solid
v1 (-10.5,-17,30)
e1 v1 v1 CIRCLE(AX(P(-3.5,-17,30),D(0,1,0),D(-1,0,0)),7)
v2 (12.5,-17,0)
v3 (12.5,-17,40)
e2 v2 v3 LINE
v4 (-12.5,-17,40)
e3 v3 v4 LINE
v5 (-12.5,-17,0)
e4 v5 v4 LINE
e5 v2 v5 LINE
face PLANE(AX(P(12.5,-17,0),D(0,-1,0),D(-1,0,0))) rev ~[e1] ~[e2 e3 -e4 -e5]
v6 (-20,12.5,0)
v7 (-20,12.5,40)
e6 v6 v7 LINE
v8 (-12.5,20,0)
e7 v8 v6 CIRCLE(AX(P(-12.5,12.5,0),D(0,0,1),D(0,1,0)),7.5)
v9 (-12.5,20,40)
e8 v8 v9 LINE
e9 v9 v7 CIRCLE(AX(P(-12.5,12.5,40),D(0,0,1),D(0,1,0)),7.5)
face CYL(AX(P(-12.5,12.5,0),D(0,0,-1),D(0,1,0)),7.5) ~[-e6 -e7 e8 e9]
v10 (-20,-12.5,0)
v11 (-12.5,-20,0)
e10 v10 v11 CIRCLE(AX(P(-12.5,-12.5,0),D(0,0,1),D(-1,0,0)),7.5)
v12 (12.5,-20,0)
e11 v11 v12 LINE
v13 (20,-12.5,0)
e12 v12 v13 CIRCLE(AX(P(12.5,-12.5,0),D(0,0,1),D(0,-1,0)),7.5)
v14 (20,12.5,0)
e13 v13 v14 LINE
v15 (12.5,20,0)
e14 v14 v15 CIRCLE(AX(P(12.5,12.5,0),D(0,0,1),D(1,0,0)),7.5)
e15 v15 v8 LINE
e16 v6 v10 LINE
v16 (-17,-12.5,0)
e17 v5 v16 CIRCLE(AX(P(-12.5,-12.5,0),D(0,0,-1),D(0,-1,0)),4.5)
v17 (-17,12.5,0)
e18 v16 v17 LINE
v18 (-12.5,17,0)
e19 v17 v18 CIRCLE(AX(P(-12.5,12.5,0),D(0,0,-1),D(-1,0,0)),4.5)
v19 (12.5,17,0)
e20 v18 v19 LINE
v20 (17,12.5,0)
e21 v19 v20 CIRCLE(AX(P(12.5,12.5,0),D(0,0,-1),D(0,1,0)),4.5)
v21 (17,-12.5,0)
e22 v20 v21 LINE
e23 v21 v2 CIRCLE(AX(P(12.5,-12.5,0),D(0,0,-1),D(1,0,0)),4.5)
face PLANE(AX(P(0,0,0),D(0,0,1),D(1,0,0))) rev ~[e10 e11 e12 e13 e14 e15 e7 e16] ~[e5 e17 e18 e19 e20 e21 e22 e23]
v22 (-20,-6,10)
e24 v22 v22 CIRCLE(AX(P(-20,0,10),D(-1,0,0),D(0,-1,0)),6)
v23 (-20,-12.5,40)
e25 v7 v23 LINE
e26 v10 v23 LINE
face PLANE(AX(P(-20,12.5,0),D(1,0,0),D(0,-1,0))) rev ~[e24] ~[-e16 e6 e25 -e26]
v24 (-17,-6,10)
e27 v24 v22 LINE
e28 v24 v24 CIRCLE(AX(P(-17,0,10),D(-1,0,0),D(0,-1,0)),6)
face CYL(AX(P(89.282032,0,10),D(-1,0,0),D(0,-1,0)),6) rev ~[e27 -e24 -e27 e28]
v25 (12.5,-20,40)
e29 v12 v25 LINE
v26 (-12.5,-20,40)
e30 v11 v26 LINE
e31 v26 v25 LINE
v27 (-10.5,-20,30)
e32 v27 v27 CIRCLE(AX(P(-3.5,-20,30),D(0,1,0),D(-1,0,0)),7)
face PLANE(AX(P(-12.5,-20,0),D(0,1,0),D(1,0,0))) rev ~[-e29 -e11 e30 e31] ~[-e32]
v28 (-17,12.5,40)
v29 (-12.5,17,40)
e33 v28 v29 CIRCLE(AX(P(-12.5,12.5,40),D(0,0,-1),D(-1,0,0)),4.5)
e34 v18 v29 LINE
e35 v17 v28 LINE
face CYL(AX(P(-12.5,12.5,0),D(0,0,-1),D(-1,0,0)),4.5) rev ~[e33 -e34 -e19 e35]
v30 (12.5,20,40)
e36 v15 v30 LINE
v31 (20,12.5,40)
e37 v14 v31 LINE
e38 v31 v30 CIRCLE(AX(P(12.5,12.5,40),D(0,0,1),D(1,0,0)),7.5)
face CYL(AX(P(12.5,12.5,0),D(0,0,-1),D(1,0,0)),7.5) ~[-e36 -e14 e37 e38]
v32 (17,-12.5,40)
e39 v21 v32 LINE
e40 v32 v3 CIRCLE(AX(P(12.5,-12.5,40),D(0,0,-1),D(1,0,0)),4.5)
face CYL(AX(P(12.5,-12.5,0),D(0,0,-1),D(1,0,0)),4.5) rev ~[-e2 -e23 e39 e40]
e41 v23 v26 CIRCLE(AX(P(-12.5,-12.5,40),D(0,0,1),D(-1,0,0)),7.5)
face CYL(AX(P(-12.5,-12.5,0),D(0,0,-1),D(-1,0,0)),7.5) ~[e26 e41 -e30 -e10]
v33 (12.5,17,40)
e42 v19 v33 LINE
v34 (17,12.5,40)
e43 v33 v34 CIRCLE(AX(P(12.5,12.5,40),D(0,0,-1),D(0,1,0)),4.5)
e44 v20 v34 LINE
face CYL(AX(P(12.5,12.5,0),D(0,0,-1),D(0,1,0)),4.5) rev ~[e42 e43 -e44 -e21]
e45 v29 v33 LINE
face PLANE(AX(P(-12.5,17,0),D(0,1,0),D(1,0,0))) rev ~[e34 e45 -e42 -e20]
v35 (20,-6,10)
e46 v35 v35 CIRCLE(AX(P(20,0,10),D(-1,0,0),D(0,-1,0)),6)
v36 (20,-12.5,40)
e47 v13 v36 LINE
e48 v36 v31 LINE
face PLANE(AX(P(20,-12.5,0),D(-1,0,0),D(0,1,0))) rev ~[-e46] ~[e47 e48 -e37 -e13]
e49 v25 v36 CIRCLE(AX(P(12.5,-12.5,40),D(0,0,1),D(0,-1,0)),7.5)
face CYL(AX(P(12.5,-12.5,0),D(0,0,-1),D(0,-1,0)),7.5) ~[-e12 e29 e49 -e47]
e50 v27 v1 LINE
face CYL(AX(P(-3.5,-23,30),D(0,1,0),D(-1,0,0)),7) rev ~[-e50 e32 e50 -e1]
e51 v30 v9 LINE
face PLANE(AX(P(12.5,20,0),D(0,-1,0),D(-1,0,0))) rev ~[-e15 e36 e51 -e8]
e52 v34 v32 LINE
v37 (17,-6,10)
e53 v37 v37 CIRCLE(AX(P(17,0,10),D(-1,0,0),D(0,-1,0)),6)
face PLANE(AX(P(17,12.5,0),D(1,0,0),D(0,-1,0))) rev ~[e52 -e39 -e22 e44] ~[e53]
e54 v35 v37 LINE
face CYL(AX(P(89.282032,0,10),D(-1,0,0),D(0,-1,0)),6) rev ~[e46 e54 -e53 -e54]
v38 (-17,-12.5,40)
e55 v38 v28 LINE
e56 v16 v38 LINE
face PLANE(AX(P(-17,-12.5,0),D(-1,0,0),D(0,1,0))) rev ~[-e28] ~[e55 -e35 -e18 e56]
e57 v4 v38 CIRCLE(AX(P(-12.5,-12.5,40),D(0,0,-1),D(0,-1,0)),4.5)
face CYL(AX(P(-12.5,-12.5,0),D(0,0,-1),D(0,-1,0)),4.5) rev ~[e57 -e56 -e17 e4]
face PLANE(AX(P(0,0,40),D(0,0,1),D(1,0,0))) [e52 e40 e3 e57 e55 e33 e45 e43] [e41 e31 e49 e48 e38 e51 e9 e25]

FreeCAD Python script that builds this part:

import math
import FreeCAD as App
import Part
import Sketcher
Q = App.Units.Quantity

doc = App.newDocument("Part")
body = doc.addObject("PartDesign::Body", "Body")

# Sketch on XY plane
sketch1 = body.newObject("Sketcher::SketchObject", "Sketch")
sketch1.AttachmentSupport = (doc.getObject("XY_Plane"), [""])
sketch1.MapMode = "FlatFace"
sketch1.addGeometry(Part.LineSegment(App.Vector(-12.5, -20, 0), App.Vector(12.5, -20, 0)), False)
sketch1.addGeometry(Part.ArcOfCircle(Part.Circle(App.Vector(12.5, -12.5, 0), App.Vector(0, 0, 1), 7.5), math.radians(-90), math.radians(0)), False)
sketch1.addGeometry(Part.LineSegment(App.Vector(20, -12.5, 0), App.Vector(20, 12.5, 0)), False)
sketch1.addGeometry(Part.ArcOfCircle(Part.Circle(App.Vector(12.5, 12.5, 0), App.Vector(0, 0, 1), 7.5), math.radians(0), math.radians(90)), False)
sketch1.addGeometry(Part.LineSegment(App.Vector(12.5, 20, 0), App.Vector(-12.5, 20, 0)), False)
sketch1.addGeometry(Part.ArcOfCircle(Part.Circle(App.Vector(-12.5, 12.5, 0), App.Vector(0, 0, 1), 7.5), math.radians(90), math.radians(180)), False)
sketch1.addGeometry(Part.LineSegment(App.Vector(-20, 12.5, 0), App.Vector(-20, -12.5, 0)), False)
sketch1.addGeometry(Part.ArcOfCircle(Part.Circle(App.Vector(-12.5, -12.5, 0), App.Vector(0, 0, 1), 7.5), math.radians(180), math.radians(270)), False)
sketch1.addGeometry(Part.LineSegment(App.Vector(12.5, -17, 0), App.Vector(-12.5, -17, 0)), False)
sketch1.addGeometry(Part.ArcOfCircle(Part.Circle(App.Vector(-12.5, -12.5, 0), App.Vector(0, 0, 1), 4.5), math.radians(180), math.radians(270)), False)
sketch1.addGeometry(Part.LineSegment(App.Vector(-17, -12.5, 0), App.Vector(-17, 12.5, 0)), False)
sketch1.addGeometry(Part.ArcOfCircle(Part.Circle(App.Vector(-12.5, 12.5, 0), App.Vector(0, 0, 1), 4.5), math.radians(90), math.radians(180)), False)
sketch1.addGeometry(Part.LineSegment(App.Vector(-12.5, 17, 0), App.Vector(12.5, 17, 0)), False)
sketch1.addGeometry(Part.ArcOfCircle(Part.Circle(App.Vector(12.5, 12.5, 0), App.Vector(0, 0, 1), 4.5), math.radians(0), math.radians(90)), False)
sketch1.addGeometry(Part.LineSegment(App.Vector(17, 12.5, 0), App.Vector(17, -12.5, 0)), False)
sketch1.addGeometry(Part.ArcOfCircle(Part.Circle(App.Vector(12.5, -12.5, 0), App.Vector(0, 0, 1), 4.5), math.radians(-90), math.radians(0)), False)
sketch1.addConstraint(Sketcher.Constraint("Tangent", 0, 2, 1, 1))
sketch1.addConstraint(Sketcher.Constraint("Tangent", 1, 2, 2, 1))
sketch1.addConstraint(Sketcher.Constraint("Tangent", 2, 2, 3, 1))
sketch1.addConstraint(Sketcher.Constraint("Tangent", 3, 2, 4, 1))
sketch1.addConstraint(Sketcher.Constraint("Tangent", 4, 2, 5, 1))
sketch1.addConstraint(Sketcher.Constraint("Tangent", 5, 2, 6, 1))
sketch1.addConstraint(Sketcher.Constraint("Tangent", 6, 2, 7, 1))
sketch1.addConstraint(Sketcher.Constraint("Tangent", 7, 2, 0, 1))
sketch1.addConstraint(Sketcher.Constraint("Tangent", 8, 2, 9, 2))
sketch1.addConstraint(Sketcher.Constraint("Tangent", 9, 1, 10, 1))
sketch1.addConstraint(Sketcher.Constraint("Tangent", 10, 2, 11, 2))
sketch1.addConstraint(Sketcher.Constraint("Tangent", 11, 1, 12, 1))
sketch1.addConstraint(Sketcher.Constraint("Tangent", 12, 2, 13, 2))
sketch1.addConstraint(Sketcher.Constraint("Tangent", 13, 1, 14, 1))
sketch1.addConstraint(Sketcher.Constraint("Tangent", 14, 2, 15, 2))
sketch1.addConstraint(Sketcher.Constraint("Tangent", 15, 1, 8, 1))
sketch1.addConstraint(Sketcher.Constraint("Horizontal", 0))
sketch1.addConstraint(Sketcher.Constraint("Vertical", 2))
sketch1.addConstraint(Sketcher.Constraint("Horizontal", 4))
sketch1.addConstraint(Sketcher.Constraint("Vertical", 6))
sketch1.addConstraint(Sketcher.Constraint("Horizontal", 8))
sketch1.addConstraint(Sketcher.Constraint("Vertical", 10))
sketch1.addConstraint(Sketcher.Constraint("Horizontal", 12))
sketch1.addConstraint(Sketcher.Constraint("Vertical", 14))
sketch1.addConstraint(Sketcher.Constraint("Coincident", 9, 3, 7, 3))
sketch1.addConstraint(Sketcher.Constraint("Coincident", 11, 3, 5, 3))
sketch1.addConstraint(Sketcher.Constraint("Coincident", 13, 3, 3, 3))
sketch1.addConstraint(Sketcher.Constraint("Equal", 1, 3))
sketch1.addConstraint(Sketcher.Constraint("Equal", 3, 5))
sketch1.addConstraint(Sketcher.Constraint("Equal", 5, 7))
sketch1.addConstraint(Sketcher.Constraint("Equal", 13, 15))
sketch1.addConstraint(Sketcher.Constraint("Symmetric", 1, 3, 5, 3, -1, 1))
sketch1.addConstraint(Sketcher.Constraint("Equal", 12, 2))
sketch1.addConstraint(Sketcher.Constraint("Radius", 1, Q("7.5 mm")))
sketch1.addConstraint(Sketcher.Constraint("Radius", 9, Q("4.5 mm")))
sketch1.addConstraint(Sketcher.Constraint("DistanceX", 0, 1, 0, 2, Q("25 mm")))
pad1 = body.newObject("PartDesign::Pad", "Pad")
pad1.Profile = sketch1
pad1.Length = 40

# Sketch on XZ plane
sketch2 = body.newObject("Sketcher::SketchObject", "Sketch001")
sketch2.AttachmentSupport = (doc.getObject("XZ_Plane"), [""])
sketch2.MapMode = "FlatFace"
sketch2.AttachmentOffset = App.Placement(App.Vector(0, 0, 20), App.Rotation())
sketch2.addGeometry(Part.Circle(App.Vector(-3.5, 30, 0), App.Vector(0, 0, 1), 7), False)
sketch2.addConstraint(Sketcher.Constraint("Diameter", 0, Q("14 mm")))
sketch2.addConstraint(Sketcher.Constraint("DistanceY", -1, 1, 0, 3, Q("30 mm")))
sketch2.addConstraint(Sketcher.Constraint("DistanceX", 0, 3, -1, 1, Q("3.5 mm")))
doc.recompute()
hole = body.newObject("PartDesign::Hole", "Hole")
hole.Profile = sketch2
hole.ThreadType = "None"
hole.Diameter = 14
hole.DepthType = "Dimension"
hole.Depth = 3
hole.DrillPoint = "Angled"
hole.DrillPointAngle = 118

# Sketch on YZ plane
sketch3 = body.newObject("Sketcher::SketchObject", "Sketch002")
sketch3.AttachmentSupport = (doc.getObject("YZ_Plane"), [""])
sketch3.MapMode = "FlatFace"
sketch3.AttachmentOffset = App.Placement(App.Vector(0, 0, 20), App.Rotation())
sketch3.addGeometry(Part.Circle(App.Vector(0, 10, 0), App.Vector(0, 0, 1), 6), False)
sketch3.addConstraint(Sketcher.Constraint("PointOnObject", 0, 3, -2))
sketch3.addConstraint(Sketcher.Constraint("Diameter", 0, Q("12 mm")))
sketch3.addConstraint(Sketcher.Constraint("DistanceY", -1, 1, 0, 3, Q("10 mm")))
doc.recompute()
hole2 = body.newObject("PartDesign::Hole", "Hole001")
hole2.Profile = sketch3
hole2.ThreadType = "None"
hole2.Diameter = 12
hole2.DepthType = "ThroughAll"

doc.recompute()
